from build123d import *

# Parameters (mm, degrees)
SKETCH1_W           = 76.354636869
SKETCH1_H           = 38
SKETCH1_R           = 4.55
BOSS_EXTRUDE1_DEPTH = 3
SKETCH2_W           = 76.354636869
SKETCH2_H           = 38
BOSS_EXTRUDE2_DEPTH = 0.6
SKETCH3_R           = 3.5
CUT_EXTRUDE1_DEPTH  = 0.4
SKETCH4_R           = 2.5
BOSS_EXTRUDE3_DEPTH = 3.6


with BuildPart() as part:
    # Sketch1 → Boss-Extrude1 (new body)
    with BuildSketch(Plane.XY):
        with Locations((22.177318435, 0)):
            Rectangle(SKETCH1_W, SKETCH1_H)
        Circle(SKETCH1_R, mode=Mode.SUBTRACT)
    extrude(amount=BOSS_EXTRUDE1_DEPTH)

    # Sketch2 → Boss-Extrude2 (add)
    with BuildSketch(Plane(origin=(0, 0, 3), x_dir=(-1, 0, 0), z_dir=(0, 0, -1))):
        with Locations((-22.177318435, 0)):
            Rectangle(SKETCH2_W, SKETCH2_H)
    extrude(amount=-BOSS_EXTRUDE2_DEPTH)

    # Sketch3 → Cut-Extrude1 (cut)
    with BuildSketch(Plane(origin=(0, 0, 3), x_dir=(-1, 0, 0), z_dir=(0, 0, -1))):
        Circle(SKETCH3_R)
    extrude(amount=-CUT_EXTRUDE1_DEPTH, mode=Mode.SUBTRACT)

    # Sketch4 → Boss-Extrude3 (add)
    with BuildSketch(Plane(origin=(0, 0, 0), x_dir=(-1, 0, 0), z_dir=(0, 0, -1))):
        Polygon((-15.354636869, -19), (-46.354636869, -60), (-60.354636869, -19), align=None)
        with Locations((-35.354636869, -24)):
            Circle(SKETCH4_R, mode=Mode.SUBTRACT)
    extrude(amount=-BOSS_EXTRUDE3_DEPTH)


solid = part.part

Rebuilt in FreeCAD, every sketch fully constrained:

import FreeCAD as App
import Part
import Sketcher
from FreeCAD import Vector
Q = App.Units.Quantity


def add_polygon(sketch, points):
    """Adds a closed chain of lines whose ends are joined by coincident constraints."""
    first, n = sketch.GeometryCount, len(points)
    for a, b in zip(points, points[1:] + points[:1]):
        sketch.addGeometry(Part.LineSegment(App.Vector(*a, 0), App.Vector(*b, 0)), False)
    for i in range(n):
        sketch.addConstraint(Sketcher.Constraint("Coincident", first + i, 2, first + (i + 1) % n, 1))

doc = App.newDocument("Part")
body = doc.addObject("PartDesign::Body", "Body")

sketch1 = doc.addObject("Sketcher::SketchObject", "Sketch")
body.addObject(sketch1)
sketch1.AttachmentSupport = (doc.XY_Plane, [""])
sketch1.MapMode = "FlatFace"
add_polygon(sketch1, [(-16, 19), (-16, -19), (60.4, -19), (60.4, 19)])
sketch1.addGeometry(Part.Circle(Vector(0, 0, 0), Vector(0, 0, 1), 4.5), False)
sketch1.addConstraint([
    Sketcher.Constraint("Vertical", 0),
    Sketcher.Constraint("Horizontal", 1),
    Sketcher.Constraint("Vertical", 2),
    Sketcher.Constraint("Horizontal", 3),
    Sketcher.Constraint("Coincident", 4, 3, -1, 1),
    Sketcher.Constraint("Diameter", 4, Q("9.1 mm")),
    Sketcher.Constraint("DistanceY", 0, 2, 0, 1, Q("38 mm")),
    Sketcher.Constraint("DistanceX", 0, 2, -1, 1, Q("16 mm")),
    Sketcher.Constraint("DistanceY", 0, 2, -1, 1, Q("19 mm")),
    Sketcher.Constraint("DistanceX", 1, 1, 1, 2, Q("76.354637 mm")),
])
pad1 = doc.addObject("PartDesign::Pad", "Pad")
body.addObject(pad1)
pad1.Profile = sketch1
pad1.Length = 3

sketch2 = doc.addObject("Sketcher::SketchObject", "Sketch001")
body.addObject(sketch2)
sketch2.AttachmentSupport = (doc.XY_Plane, [""])
sketch2.MapMode = "FlatFace"
sketch2.AttachmentOffset = App.Placement(Vector(0, 0, 3), App.Rotation())
add_polygon(sketch2, [(60, 19), (60, -19), (-16, -19), (-16, 19)])
sketch2.addConstraint([
    Sketcher.Constraint("Vertical", 0),
    Sketcher.Constraint("Horizontal", 1),
    Sketcher.Constraint("Vertical", 2),
    Sketcher.Constraint("Horizontal", 3),
    Sketcher.Constraint("DistanceY", 0, 2, 0, 1, Q("38 mm")),
    Sketcher.Constraint("DistanceY", 0, 2, -1, 1, Q("19 mm")),
    Sketcher.Constraint("DistanceX", 1, 2, -1, 1, Q("16 mm")),
    Sketcher.Constraint("DistanceX", 1, 2, 1, 1, Q("76.354637 mm")),
])
pad2 = doc.addObject("PartDesign::Pad", "Pad001")
body.addObject(pad2)
pad2.Profile = sketch2
pad2.Length = 0.6

sketch3 = doc.addObject("Sketcher::SketchObject", "Sketch002")
body.addObject(sketch3)
sketch3.AttachmentSupport = (doc.XY_Plane, [""])
sketch3.MapMode = "FlatFace"
sketch3.AttachmentOffset = App.Placement(Vector(0, 0, 3), App.Rotation())
sketch3.addGeometry(Part.Circle(Vector(0, 0, 0), Vector(0, 0, 1), 3.5), False)
sketch3.addConstraint([
    Sketcher.Constraint("Coincident", 0, 3, -1, 1),
    Sketcher.Constraint("Diameter", 0, Q("7 mm")),
])
pocket1 = doc.addObject("PartDesign::Pocket", "Pocket")
body.addObject(pocket1)
pocket1.Profile = sketch3
pocket1.Length = 0.4
pocket1.Reversed = True

sketch4 = doc.addObject("Sketcher::SketchObject", "Sketch003")
body.addObject(sketch4)
sketch4.AttachmentSupport = (doc.XY_Plane, [""])
sketch4.MapMode = "FlatFace"
add_polygon(sketch4, [(46.4, -60), (15.4, -19), (60.4, -19)])
sketch4.addGeometry(Part.Circle(Vector(35.4, -24, 0), Vector(0, 0, 1), 2.5), False)
sketch4.addConstraint([
    Sketcher.Constraint("Horizontal", 1),
    Sketcher.Constraint("Diameter", 3, Q("5 mm")),
    Sketcher.Constraint("DistanceX", 1, 1, 1, 2, Q("45 mm")),
    Sketcher.Constraint("DistanceY", 3, 3, -1, 1, Q("24 mm")),
    Sketcher.Constraint("DistanceY", 0, 2, -1, 1, Q("19 mm")),
    Sketcher.Constraint("DistanceY", 2, 2, -1, 1, Q("60 mm")),
    Sketcher.Constraint("DistanceX", 0, 2, 3, 3, Q("20 mm")),
    Sketcher.Constraint("DistanceX", 3, 3, 2, 2, Q("11 mm")),
    Sketcher.Constraint("DistanceX", -1, 1, 3, 3, Q("35.354637 mm")),
])
pad3 = doc.addObject("PartDesign::Pad", "Pad002")
body.addObject(pad3)
pad3.Profile = sketch4
pad3.Length = 3.6

doc.recompute()
